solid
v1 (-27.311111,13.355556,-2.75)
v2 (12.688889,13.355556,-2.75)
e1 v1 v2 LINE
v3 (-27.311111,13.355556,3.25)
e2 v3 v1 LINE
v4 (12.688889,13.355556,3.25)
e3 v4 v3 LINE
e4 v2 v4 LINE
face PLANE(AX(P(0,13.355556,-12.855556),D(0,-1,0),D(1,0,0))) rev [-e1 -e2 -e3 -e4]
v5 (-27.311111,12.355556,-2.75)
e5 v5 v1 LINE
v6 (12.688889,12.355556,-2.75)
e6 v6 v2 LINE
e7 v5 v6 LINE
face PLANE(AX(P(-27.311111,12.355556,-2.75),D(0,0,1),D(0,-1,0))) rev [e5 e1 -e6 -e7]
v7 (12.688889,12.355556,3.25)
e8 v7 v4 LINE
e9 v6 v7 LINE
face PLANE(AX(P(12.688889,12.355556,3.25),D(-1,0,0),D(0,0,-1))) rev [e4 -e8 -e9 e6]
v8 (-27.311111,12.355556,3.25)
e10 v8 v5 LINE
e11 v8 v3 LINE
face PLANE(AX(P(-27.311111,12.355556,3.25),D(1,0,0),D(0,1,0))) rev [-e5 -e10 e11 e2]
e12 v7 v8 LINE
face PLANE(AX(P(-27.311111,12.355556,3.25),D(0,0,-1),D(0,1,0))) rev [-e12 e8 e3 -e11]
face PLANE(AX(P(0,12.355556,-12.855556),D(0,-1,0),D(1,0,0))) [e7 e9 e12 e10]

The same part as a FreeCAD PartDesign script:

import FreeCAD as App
import Part
import Sketcher

doc = App.newDocument("Part")
params = doc.addObject("Spreadsheet::Sheet", "Params")
for row, (alias, value) in enumerate([
    ("sketch1_width", "40 mm"),
    ("sketch1_height", "6 mm"),
    ("pad1_length", "1 mm"),
], start=1):
    params.set(f"A{row}", alias)
    params.set(f"B{row}", "=" + value)
    params.setAlias(f"B{row}", alias)

body = doc.addObject("PartDesign::Body", "Body")

sketch1 = doc.addObject("Sketcher::SketchObject", "Sketch")
body.addObject(sketch1)
sketch1.AttachmentSupport = (doc.XY_Plane, [""])
sketch1.MapMode = "FlatFace"
sketch1.addGeometry(Part.LineSegment(App.Vector(-27.311111, 16.105556, 0), App.Vector(-27.311111, 10.105556, 0)), False)
sketch1.addGeometry(Part.LineSegment(App.Vector(-27.311111, 10.105556, 0), App.Vector(12.688889, 10.105556, 0)), False)
sketch1.addGeometry(Part.LineSegment(App.Vector(12.688889, 10.105556, 0), App.Vector(12.688889, 16.105556, 0)), False)
sketch1.addGeometry(Part.LineSegment(App.Vector(12.688889, 16.105556, 0), App.Vector(-27.311111, 16.105556, 0)), False)
sketch1.addConstraint(Sketcher.Constraint("Coincident", 0, 2, 1, 1))
sketch1.addConstraint(Sketcher.Constraint("Coincident", 1, 2, 2, 1))
sketch1.addConstraint(Sketcher.Constraint("Coincident", 2, 2, 3, 1))
sketch1.addConstraint(Sketcher.Constraint("Coincident", 3, 2, 0, 1))
sketch1.addConstraint(Sketcher.Constraint("Vertical", 0))
sketch1.addConstraint(Sketcher.Constraint("Horizontal", 1))
sketch1.addConstraint(Sketcher.Constraint("Vertical", 2))
sketch1.addConstraint(Sketcher.Constraint("Horizontal", 3))
sketch1.addConstraint(Sketcher.Constraint("DistanceX", 1, 1, 1, 2, 40.0))
sketch1.addConstraint(Sketcher.Constraint("DistanceY", 0, 2, 0, 1, 6.0))
sketch1.addConstraint(Sketcher.Constraint("DistanceX", 0, 2, -1, 1, 27.311111))
sketch1.addConstraint(Sketcher.Constraint("DistanceY", -1, 1, 0, 2, 10.105556))
sketch1.setExpression("Constraints[8]", "Params.sketch1_width")
sketch1.setExpression("Constraints[9]", "Params.sketch1_height")
pad1 = doc.addObject("PartDesign::Pad", "Pad")
body.addObject(pad1)
pad1.Profile = sketch1
pad1.setExpression("Length", "Params.pad1_length")
body2 = doc.addObject("PartDesign::Body", "Body001")
doc.recompute()

body.Placement = App.Placement(App.Vector(0, 13.355556, -12.855556), App.Rotation(App.Vector(1, 0, 0), 90))
boolean = doc.addObject("PartDesign::Boolean", "Boolean")
body2.addObject(boolean)
boolean.Type = "Fuse"
boolean.addObjects([body])

doc.recompute()
